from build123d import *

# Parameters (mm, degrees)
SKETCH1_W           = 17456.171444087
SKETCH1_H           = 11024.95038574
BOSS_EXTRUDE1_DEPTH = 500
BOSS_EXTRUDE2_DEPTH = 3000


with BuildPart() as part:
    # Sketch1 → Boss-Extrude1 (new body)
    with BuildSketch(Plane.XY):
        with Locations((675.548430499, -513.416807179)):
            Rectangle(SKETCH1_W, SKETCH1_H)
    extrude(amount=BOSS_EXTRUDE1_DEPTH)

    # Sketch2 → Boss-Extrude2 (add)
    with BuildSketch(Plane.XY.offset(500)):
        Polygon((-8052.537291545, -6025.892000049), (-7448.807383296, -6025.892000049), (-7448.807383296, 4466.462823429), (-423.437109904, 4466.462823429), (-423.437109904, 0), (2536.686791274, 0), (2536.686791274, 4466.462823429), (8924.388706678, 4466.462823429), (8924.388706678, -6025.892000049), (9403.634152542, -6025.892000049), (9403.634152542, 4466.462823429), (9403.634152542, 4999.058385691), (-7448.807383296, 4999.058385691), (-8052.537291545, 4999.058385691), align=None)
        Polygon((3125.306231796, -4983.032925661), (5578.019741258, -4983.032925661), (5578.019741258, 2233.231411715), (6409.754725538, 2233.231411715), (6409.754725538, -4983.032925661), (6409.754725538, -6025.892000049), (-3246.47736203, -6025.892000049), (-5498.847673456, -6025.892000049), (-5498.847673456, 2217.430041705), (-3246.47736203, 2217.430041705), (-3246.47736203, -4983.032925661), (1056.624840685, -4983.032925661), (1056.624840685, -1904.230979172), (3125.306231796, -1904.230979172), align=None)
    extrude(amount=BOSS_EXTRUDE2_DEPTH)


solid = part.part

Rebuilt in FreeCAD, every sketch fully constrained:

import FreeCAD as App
import Part
import Sketcher
Q = App.Units.Quantity


def add_polygon(sketch, points):
    """Adds a closed chain of lines whose ends are joined by coincident constraints."""
    first, n = sketch.GeometryCount, len(points)
    for a, b in zip(points, points[1:] + points[:1]):
        sketch.addGeometry(Part.LineSegment(App.Vector(*a, 0), App.Vector(*b, 0)), False)
    for i in range(n):
        sketch.addConstraint(Sketcher.Constraint("Coincident", first + i, 2, first + (i + 1) % n, 1))

doc = App.newDocument("Part")
body = doc.addObject("PartDesign::Body", "Body")

# Sketch on XY plane
sketch1 = body.newObject("Sketcher::SketchObject", "Sketch")
sketch1.AttachmentSupport = (doc.getObject("XY_Plane"), [""])
sketch1.MapMode = "FlatFace"
add_polygon(sketch1, [(-8053, 4999), (-8053, -6026), (9404, -6026), (9404, 4999)])  # lines 0-3
sketch1.addConstraint(Sketcher.Constraint("Vertical", 0))
sketch1.addConstraint(Sketcher.Constraint("Horizontal", 1))
sketch1.addConstraint(Sketcher.Constraint("Vertical", 2))
sketch1.addConstraint(Sketcher.Constraint("Horizontal", 3))
sketch1.addConstraint(Sketcher.Constraint("DistanceY", 0, 2, -1, 1, Q("6025.892 mm")))
sketch1.addConstraint(Sketcher.Constraint("DistanceX", 1, 1, 1, 2, Q("17456.171444 mm")))
sketch1.addConstraint(Sketcher.Constraint("DistanceY", 0, 2, 0, 1, Q("11024.950386 mm")))
sketch1.addConstraint(Sketcher.Constraint("DistanceX", 0, 2, -1, 1, Q("8052.537292 mm")))
pad1 = body.newObject("PartDesign::Pad", "Pad")
pad1.Profile = sketch1
pad1.Length = 500

# Sketch on XY plane
sketch2 = body.newObject("Sketcher::SketchObject", "Sketch001")
sketch2.AttachmentSupport = (doc.getObject("XY_Plane"), [""])
sketch2.MapMode = "FlatFace"
sketch2.AttachmentOffset = App.Placement(App.Vector(0, 0, 500), App.Rotation())
add_polygon(sketch2, [(-8053, -6026), (-7449, -6026), (-7449, 4466), (-423, 4466), (-423, 0), (2537, 0), (2537, 4466), (8924, 4466), (8924, -6026), (9404, -6026), (9404, 4999), (-8053, 4999)])  # lines 0-11
add_polygon(sketch2, [(5578, -4983), (3125, -4983), (3125, -1904), (1057, -1904), (1057, -4983), (-3246, -4983), (-3246, 2217), (-5499, 2217), (-5499, -6026), (6410, -6026), (6410, 2233), (5578, 2233)])  # lines 12-23
sketch2.addConstraint(Sketcher.Constraint("Horizontal", 0))
sketch2.addConstraint(Sketcher.Constraint("Vertical", 1))
sketch2.addConstraint(Sketcher.Constraint("Horizontal", 2))
sketch2.addConstraint(Sketcher.Constraint("Vertical", 3))
sketch2.addConstraint(Sketcher.Constraint("Horizontal", 4))
sketch2.addConstraint(Sketcher.Constraint("Vertical", 5))
sketch2.addConstraint(Sketcher.Constraint("Horizontal", 6))
sketch2.addConstraint(Sketcher.Constraint("Vertical", 7))
sketch2.addConstraint(Sketcher.Constraint("Horizontal", 8))
sketch2.addConstraint(Sketcher.Constraint("Vertical", 9))
sketch2.addConstraint(Sketcher.Constraint("Horizontal", 10))
sketch2.addConstraint(Sketcher.Constraint("Vertical", 11))
sketch2.addConstraint(Sketcher.Constraint("Horizontal", 12))
sketch2.addConstraint(Sketcher.Constraint("Vertical", 13))
sketch2.addConstraint(Sketcher.Constraint("Horizontal", 14))
sketch2.addConstraint(Sketcher.Constraint("Vertical", 15))
sketch2.addConstraint(Sketcher.Constraint("Horizontal", 16))
sketch2.addConstraint(Sketcher.Constraint("Vertical", 17))
sketch2.addConstraint(Sketcher.Constraint("Horizontal", 18))
sketch2.addConstraint(Sketcher.Constraint("Vertical", 19))
sketch2.addConstraint(Sketcher.Constraint("Horizontal", 20))
sketch2.addConstraint(Sketcher.Constraint("Vertical", 21))
sketch2.addConstraint(Sketcher.Constraint("Horizontal", 22))
sketch2.addConstraint(Sketcher.Constraint("Vertical", 23))
sketch2.addConstraint(Sketcher.Constraint("PointOnObject", 3, 2, -1))
sketch2.addConstraint(Sketcher.Constraint("Horizontal", 2, 2, 5, 2))
sketch2.addConstraint(Sketcher.Constraint("Horizontal", 0, 2, 7, 2))
sketch2.addConstraint(Sketcher.Constraint("Horizontal", 12, 2, 15, 2))
sketch2.addConstraint(Sketcher.Constraint("Horizontal", 11, 2, 19, 2))
sketch2.addConstraint(Sketcher.Constraint("DistanceX", 4, 1, 4, 2, Q("2960.123901 mm")))
sketch2.addConstraint(Sketcher.Constraint("DistanceX", 20, 1, 20, 2, Q("11908.602399 mm")))
sketch2.addConstraint(Sketcher.Constraint("DistanceY", 0, 2, -1, 1, Q("6025.892 mm")))
sketch2.addConstraint(Sketcher.Constraint("DistanceX", 0, 1, 0, 2, Q("603.729908 mm")))
sketch2.addConstraint(Sketcher.Constraint("DistanceX", 12, 2, 12, 1, Q("2452.713509 mm")))
sketch2.addConstraint(Sketcher.Constraint("DistanceX", 14, 2, 14, 1, Q("2068.681391 mm")))
sketch2.addConstraint(Sketcher.Constraint("DistanceX", 18, 2, 18, 1, Q("2252.370311 mm")))
sketch2.addConstraint(Sketcher.Constraint("DistanceY", 19, 2, 19, 1, Q("8243.322042 mm")))
sketch2.addConstraint(Sketcher.Constraint("DistanceY", 21, 1, 21, 2, Q("8259.123412 mm")))
sketch2.addConstraint(Sketcher.Constraint("DistanceX", 2, 1, 2, 2, Q("7025.370273 mm")))
sketch2.addConstraint(Sketcher.Constraint("DistanceX", 6, 1, 6, 2, Q("6387.701915 mm")))
sketch2.addConstraint(Sketcher.Constraint("DistanceX", 8, 1, 8, 2, Q("479.245446 mm")))
sketch2.addConstraint(Sketcher.Constraint("DistanceX", 16, 2, 16, 1, Q("4303.102203 mm")))
sketch2.addConstraint(Sketcher.Constraint("DistanceY", 1, 1, 1, 2, Q("10492.354823 mm")))
sketch2.addConstraint(Sketcher.Constraint("DistanceY", 9, 1, 9, 2, Q("11024.950386 mm")))
sketch2.addConstraint(Sketcher.Constraint("DistanceY", 13, 1, 13, 2, Q("3078.801946 mm")))
sketch2.addConstraint(Sketcher.Constraint("DistanceY", 17, 1, 17, 2, Q("7200.462967 mm")))
sketch2.addConstraint(Sketcher.Constraint("DistanceX", 2, 2, -1, 1, Q("423.43711 mm")))
sketch2.addConstraint(Sketcher.Constraint("DistanceX", -1, 1, 12, 2, Q("3125.306232 mm")))
pad2 = body.newObject("PartDesign::Pad", "Pad001")
pad2.Profile = sketch2
pad2.Length = 3000

doc.recompute()
